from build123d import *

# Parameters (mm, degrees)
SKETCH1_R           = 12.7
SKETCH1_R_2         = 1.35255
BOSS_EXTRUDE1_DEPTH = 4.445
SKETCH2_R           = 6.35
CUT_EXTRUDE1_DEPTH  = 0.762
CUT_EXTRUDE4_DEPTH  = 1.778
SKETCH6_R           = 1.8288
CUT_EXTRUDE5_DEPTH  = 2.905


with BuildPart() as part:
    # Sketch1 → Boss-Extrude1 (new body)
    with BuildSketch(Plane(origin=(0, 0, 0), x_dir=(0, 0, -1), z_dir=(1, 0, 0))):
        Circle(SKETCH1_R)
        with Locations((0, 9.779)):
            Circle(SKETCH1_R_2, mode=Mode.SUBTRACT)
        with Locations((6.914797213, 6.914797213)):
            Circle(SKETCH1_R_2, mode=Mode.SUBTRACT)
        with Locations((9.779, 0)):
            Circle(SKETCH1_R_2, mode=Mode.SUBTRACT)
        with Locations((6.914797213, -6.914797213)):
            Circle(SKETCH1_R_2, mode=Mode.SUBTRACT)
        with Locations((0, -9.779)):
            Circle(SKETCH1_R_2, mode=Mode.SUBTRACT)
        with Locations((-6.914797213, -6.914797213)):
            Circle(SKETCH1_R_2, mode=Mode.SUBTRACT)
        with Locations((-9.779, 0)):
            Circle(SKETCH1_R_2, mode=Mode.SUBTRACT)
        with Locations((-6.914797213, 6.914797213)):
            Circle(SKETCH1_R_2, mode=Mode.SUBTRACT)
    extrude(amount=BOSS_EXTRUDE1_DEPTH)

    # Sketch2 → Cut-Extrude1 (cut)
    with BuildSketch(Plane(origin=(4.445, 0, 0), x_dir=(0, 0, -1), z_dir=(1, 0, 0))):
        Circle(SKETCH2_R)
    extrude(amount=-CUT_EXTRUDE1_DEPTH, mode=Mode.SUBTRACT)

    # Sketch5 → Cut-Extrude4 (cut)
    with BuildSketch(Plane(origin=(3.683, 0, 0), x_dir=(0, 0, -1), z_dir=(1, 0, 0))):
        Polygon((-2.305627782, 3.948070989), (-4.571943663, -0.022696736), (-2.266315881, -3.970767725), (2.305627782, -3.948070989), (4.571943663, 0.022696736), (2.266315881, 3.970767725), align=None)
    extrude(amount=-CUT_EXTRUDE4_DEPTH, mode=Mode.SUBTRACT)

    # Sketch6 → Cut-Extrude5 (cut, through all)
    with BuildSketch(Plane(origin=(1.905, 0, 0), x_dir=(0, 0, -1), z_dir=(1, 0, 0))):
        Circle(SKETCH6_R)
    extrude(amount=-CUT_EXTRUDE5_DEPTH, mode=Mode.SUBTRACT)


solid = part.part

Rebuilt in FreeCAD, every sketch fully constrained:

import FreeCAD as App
import Part
import Sketcher
from FreeCAD import Vector
Q = App.Units.Quantity

doc = App.newDocument("Part")
body = doc.addObject("PartDesign::Body", "Body")

sketch1 = body.newObject("Sketcher::SketchObject", "Sketch")
sketch1.AttachmentSupport = (doc.getObject("YZ_Plane"), [""])
sketch1.MapMode = "FlatFace"
sketch1.addGeometry([
    Part.Circle(Vector(0, 0, 0), Vector(0, 0, 1), 12.7),
    Part.Circle(Vector(-6.9, 6.9, 0), Vector(0, 0, 1), 1.4),
    Part.Circle(Vector(-9.8, 0, 0), Vector(0, 0, 1), 1.4),
    Part.Circle(Vector(-6.9, -6.9, 0), Vector(0, 0, 1), 1.4),
    Part.Circle(Vector(0, 9.8, 0), Vector(0, 0, 1), 1.4),
    Part.Circle(Vector(6.9, 6.9, 0), Vector(0, 0, 1), 1.4),
    Part.Circle(Vector(0, -9.8, 0), Vector(0, 0, 1), 1.4),
    Part.Circle(Vector(9.8, 0, 0), Vector(0, 0, 1), 1.4),
    Part.Circle(Vector(6.9, -6.9, 0), Vector(0, 0, 1), 1.4),
], False)
sketch1.addConstraint([
    Sketcher.Constraint("Coincident", 0, 3, -1, 1),
    Sketcher.Constraint("Equal", 1, 2),
    Sketcher.Constraint("Equal", 2, 3),
    Sketcher.Constraint("Equal", 3, 4),
    Sketcher.Constraint("Equal", 4, 5),
    Sketcher.Constraint("Equal", 5, 6),
    Sketcher.Constraint("Equal", 6, 7),
    Sketcher.Constraint("Equal", 7, 8),
    Sketcher.Constraint("Symmetric", 3, 3, 5, 3, -1, 1),
    Sketcher.Constraint("Symmetric", 4, 3, 6, 3, -1, 1),
    Sketcher.Constraint("Symmetric", 2, 3, 7, 3, -1, 1),
    Sketcher.Constraint("Symmetric", 1, 3, 8, 3, -1, 1),
    Sketcher.Constraint("Symmetric", 1, 3, 5, 3, -2),
    Sketcher.Constraint("PointOnObject", 2, 3, -1),
    Sketcher.Constraint("PointOnObject", 4, 3, -2),
    Sketcher.Constraint("Diameter", 0, Q("1 in")),
    Sketcher.Constraint("Diameter", 1, Q("0.1065 in")),
    Sketcher.Constraint("DistanceX", 2, 3, -1, 1, Q("0.385 in")),
    Sketcher.Constraint("DistanceY", -1, 1, 4, 3, Q("0.385 in")),
    Sketcher.Constraint("DistanceX", 1, 3, -1, 1, 6.914797),
    Sketcher.Constraint("DistanceY", -1, 1, 1, 3, 6.914797),
])
pad1 = body.newObject("PartDesign::Pad", "Pad")
pad1.Profile = sketch1
pad1.Length = Q("0.175 in")

sketch2 = body.newObject("Sketcher::SketchObject", "Sketch001")
sketch2.AttachmentSupport = (doc.getObject("YZ_Plane"), [""])
sketch2.MapMode = "FlatFace"
sketch2.AttachmentOffset = App.Placement(Vector(0, 0, 0.175 * 25.4), App.Rotation())
sketch2.addGeometry(Part.Circle(Vector(0, 0, 0), Vector(0, 0, 1), 6), False)
sketch2.addConstraint([
    Sketcher.Constraint("Coincident", 0, 3, -1, 1),
    Sketcher.Constraint("Diameter", 0, Q("0.5 in")),
])
pocket1 = body.newObject("PartDesign::Pocket", "Pocket")
pocket1.Profile = sketch2
pocket1.Length = Q("0.03 in")

sketch3 = body.newObject("Sketcher::SketchObject", "Sketch002")
sketch3.AttachmentSupport = (doc.getObject("YZ_Plane"), [""])
sketch3.MapMode = "FlatFace"
sketch3.AttachmentOffset = App.Placement(Vector(0, 0, 0.145 * 25.4), App.Rotation())
sketch3.addGeometry([
    Part.LineSegment(Vector(3.9, 2.3, 0), Vector(0, 4.6, 0)),
    Part.LineSegment(Vector(0, 4.6, 0), Vector(-4, 2.3, 0)),
    Part.LineSegment(Vector(-4, 2.3, 0), Vector(-3.9, -2.3, 0)),
    Part.LineSegment(Vector(-3.9, -2.3, 0), Vector(0, -4.6, 0)),
    Part.LineSegment(Vector(0, -4.6, 0), Vector(4, -2.3, 0)),
    Part.LineSegment(Vector(4, -2.3, 0), Vector(3.9, 2.3, 0)),
], False)
sketch3.addConstraint([
    Sketcher.Constraint("Coincident", 0, 2, 1, 1),
    Sketcher.Constraint("Coincident", 1, 2, 2, 1),
    Sketcher.Constraint("Coincident", 2, 2, 3, 1),
    Sketcher.Constraint("Coincident", 3, 2, 4, 1),
    Sketcher.Constraint("Coincident", 4, 2, 5, 1),
    Sketcher.Constraint("Coincident", 5, 2, 0, 1),
    Sketcher.Constraint("Symmetric", 0, 2, 3, 2, -1, 1),
    Sketcher.Constraint("Symmetric", 1, 2, 4, 2, -1, 1),
    Sketcher.Constraint("Symmetric", 2, 2, 5, 2, -1, 1),
    Sketcher.Constraint("Equal", 0, 1),
    Sketcher.Constraint("Equal", 1, 2),
    Sketcher.Constraint("Distance", 0, Q("0.18 in")),
    Sketcher.Constraint("DistanceX", 2, 2, -1, 1, 3.948071),
    Sketcher.Constraint("DistanceX", 1, 2, 0, 2, 3.948071),
    Sketcher.Constraint("DistanceY", 3, 2, 1, 2, 6.83826),
])
pocket2 = body.newObject("PartDesign::Pocket", "Pocket001")
pocket2.Profile = sketch3
pocket2.Length = Q("0.07 in")

sketch4 = body.newObject("Sketcher::SketchObject", "Sketch003")
sketch4.AttachmentSupport = (doc.getObject("YZ_Plane"), [""])
sketch4.MapMode = "FlatFace"
sketch4.AttachmentOffset = App.Placement(Vector(0, 0, 0.075 * 25.4), App.Rotation())
sketch4.addGeometry(Part.Circle(Vector(0, 0, 0), Vector(0, 0, 1), 1.8), False)
sketch4.addConstraint([
    Sketcher.Constraint("Coincident", 0, 3, -1, 1),
    Sketcher.Constraint("Diameter", 0, Q("0.144 in")),
])
pocket3 = body.newObject("PartDesign::Pocket", "Pocket002")
pocket3.Profile = sketch4
pocket3.Type = "ThroughAll"

doc.recompute()
